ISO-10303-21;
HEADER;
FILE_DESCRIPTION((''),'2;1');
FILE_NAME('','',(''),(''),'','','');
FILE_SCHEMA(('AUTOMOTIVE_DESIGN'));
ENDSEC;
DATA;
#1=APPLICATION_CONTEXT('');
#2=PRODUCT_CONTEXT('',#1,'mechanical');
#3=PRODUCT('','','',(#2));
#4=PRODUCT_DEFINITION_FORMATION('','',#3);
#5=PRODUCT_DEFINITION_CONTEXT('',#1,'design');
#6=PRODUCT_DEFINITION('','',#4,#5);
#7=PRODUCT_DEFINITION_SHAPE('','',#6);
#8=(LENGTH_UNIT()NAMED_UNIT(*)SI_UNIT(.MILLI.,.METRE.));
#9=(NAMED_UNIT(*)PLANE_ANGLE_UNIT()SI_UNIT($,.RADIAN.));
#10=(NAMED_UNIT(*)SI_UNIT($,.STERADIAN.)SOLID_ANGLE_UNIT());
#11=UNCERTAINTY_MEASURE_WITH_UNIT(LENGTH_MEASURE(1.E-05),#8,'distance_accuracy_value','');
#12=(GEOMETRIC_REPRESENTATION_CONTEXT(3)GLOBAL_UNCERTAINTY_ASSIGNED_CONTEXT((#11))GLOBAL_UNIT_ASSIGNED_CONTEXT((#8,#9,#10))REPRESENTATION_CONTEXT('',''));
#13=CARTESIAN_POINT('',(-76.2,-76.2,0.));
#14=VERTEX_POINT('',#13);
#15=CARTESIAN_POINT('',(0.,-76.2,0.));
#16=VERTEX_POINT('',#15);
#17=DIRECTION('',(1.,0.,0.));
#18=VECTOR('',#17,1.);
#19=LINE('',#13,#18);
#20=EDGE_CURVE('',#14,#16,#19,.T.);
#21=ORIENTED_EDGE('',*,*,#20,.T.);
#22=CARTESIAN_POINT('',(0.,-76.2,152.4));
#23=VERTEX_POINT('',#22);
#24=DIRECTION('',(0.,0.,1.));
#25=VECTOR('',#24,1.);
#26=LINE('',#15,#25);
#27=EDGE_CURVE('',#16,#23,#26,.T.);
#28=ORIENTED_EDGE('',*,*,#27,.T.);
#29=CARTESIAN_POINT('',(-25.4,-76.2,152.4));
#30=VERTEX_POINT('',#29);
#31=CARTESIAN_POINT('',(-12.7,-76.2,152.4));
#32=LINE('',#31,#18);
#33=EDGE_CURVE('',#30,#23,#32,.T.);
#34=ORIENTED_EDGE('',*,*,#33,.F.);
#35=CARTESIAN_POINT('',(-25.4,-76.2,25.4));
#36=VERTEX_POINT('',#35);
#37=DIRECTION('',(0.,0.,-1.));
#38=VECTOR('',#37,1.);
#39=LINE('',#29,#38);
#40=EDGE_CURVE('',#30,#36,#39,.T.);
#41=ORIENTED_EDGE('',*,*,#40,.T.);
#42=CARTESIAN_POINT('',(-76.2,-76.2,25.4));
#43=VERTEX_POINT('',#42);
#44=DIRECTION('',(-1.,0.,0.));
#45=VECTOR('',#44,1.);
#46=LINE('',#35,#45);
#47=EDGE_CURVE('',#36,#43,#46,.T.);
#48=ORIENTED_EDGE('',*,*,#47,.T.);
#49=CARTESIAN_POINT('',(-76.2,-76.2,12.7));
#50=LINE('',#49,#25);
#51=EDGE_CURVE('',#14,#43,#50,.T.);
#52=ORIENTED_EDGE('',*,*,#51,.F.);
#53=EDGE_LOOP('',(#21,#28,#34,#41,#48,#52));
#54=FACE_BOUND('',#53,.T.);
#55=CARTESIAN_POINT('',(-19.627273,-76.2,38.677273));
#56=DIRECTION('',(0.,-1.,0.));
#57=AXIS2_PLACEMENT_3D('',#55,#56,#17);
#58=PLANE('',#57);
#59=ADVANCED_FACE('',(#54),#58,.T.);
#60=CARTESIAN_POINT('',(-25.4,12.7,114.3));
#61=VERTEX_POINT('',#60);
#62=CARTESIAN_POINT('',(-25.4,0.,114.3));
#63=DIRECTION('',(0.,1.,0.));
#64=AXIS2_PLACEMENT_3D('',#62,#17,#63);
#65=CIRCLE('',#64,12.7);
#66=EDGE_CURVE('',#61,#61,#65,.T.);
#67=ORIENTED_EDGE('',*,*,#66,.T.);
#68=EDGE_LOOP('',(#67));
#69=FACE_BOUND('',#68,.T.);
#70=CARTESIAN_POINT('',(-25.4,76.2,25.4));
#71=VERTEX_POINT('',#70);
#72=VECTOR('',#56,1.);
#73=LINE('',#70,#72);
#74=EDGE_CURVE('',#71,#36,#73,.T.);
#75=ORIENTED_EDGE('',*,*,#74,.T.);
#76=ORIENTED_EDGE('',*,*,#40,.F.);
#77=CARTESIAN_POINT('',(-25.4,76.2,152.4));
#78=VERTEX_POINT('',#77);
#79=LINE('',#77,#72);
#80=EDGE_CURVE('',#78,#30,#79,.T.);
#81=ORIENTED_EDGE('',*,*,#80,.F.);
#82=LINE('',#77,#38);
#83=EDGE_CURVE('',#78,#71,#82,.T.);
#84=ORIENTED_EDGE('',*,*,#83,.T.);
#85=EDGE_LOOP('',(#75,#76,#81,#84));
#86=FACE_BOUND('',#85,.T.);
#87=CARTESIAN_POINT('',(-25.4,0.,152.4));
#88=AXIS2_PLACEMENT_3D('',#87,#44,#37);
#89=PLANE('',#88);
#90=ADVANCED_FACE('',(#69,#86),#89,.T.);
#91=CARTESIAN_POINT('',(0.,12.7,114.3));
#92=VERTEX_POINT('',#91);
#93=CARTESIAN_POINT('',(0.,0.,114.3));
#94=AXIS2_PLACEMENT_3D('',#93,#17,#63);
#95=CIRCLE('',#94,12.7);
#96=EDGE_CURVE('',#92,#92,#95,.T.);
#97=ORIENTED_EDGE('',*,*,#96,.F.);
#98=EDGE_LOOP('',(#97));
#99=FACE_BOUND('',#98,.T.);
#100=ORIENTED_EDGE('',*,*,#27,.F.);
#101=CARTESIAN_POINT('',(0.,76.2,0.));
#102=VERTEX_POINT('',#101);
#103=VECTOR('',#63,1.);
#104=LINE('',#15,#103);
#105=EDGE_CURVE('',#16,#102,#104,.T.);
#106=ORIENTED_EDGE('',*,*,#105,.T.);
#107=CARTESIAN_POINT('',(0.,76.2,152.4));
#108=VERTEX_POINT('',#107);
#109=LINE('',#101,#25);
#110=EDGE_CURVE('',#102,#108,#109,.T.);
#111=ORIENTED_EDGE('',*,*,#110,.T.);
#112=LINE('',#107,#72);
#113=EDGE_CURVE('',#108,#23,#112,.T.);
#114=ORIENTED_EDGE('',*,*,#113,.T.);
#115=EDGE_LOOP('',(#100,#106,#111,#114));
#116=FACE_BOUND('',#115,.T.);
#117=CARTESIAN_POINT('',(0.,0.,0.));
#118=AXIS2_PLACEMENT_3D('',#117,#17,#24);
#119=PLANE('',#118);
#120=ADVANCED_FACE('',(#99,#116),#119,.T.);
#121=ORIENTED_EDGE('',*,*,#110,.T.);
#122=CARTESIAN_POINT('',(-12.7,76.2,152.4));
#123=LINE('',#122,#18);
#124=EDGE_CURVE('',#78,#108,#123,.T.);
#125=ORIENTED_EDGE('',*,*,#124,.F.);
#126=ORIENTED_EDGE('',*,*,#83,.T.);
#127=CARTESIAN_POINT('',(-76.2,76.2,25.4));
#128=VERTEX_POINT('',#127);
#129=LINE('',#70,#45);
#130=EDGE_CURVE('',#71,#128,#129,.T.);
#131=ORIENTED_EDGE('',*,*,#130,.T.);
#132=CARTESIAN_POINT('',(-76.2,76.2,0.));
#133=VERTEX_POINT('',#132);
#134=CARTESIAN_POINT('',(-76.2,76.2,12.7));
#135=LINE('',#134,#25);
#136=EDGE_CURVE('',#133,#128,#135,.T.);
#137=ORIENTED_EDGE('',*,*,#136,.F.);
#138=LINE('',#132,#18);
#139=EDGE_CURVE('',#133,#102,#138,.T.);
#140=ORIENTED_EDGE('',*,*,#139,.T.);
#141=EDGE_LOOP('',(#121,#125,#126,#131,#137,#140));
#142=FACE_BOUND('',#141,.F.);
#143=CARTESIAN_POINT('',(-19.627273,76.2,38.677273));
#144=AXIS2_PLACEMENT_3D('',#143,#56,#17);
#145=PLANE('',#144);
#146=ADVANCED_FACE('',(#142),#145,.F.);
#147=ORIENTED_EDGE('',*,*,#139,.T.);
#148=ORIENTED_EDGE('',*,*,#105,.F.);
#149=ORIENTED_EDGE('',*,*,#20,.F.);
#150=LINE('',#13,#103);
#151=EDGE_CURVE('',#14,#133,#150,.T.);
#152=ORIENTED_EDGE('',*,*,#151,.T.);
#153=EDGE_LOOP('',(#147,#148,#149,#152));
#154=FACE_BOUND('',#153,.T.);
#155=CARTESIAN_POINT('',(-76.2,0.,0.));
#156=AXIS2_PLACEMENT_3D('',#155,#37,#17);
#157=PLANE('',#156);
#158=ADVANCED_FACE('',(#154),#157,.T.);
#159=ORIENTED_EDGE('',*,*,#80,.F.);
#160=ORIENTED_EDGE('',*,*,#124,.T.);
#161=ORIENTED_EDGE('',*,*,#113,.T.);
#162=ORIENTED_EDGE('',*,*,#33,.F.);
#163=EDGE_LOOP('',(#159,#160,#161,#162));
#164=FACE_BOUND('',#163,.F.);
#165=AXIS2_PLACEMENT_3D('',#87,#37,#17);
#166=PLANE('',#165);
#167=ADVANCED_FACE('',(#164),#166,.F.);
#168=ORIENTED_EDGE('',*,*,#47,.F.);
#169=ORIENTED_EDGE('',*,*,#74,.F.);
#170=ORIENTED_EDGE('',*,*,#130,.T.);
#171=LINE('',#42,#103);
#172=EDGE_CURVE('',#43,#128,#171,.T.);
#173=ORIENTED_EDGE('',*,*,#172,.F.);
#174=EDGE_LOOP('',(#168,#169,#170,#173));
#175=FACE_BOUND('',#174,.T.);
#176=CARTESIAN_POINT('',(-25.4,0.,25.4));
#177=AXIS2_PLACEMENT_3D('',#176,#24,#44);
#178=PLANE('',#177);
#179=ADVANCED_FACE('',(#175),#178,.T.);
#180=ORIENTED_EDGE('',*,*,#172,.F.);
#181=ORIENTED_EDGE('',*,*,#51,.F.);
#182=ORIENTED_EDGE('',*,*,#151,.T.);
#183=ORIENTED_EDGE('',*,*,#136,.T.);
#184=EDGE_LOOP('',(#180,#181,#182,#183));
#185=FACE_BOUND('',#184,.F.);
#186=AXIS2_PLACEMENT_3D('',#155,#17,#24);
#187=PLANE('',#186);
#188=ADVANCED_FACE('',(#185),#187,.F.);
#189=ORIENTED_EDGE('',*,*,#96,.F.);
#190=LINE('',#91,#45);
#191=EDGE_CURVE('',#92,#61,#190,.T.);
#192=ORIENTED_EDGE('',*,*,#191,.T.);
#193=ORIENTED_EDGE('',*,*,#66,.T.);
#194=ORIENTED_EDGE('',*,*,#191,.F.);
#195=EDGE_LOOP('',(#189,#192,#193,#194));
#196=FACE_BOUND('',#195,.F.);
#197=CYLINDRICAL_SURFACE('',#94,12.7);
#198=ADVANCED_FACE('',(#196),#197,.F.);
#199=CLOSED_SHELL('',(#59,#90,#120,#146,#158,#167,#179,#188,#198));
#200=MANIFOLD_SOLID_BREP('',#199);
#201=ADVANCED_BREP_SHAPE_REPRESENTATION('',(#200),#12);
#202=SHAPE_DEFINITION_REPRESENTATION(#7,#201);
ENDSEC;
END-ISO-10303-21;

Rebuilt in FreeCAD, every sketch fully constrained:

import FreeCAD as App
import Part
import Sketcher
Q = App.Units.Quantity


def add_polygon(sketch, points):
    """Adds a closed chain of lines whose ends are joined by coincident constraints."""
    first, n = sketch.GeometryCount, len(points)
    for a, b in zip(points, points[1:] + points[:1]):
        sketch.addGeometry(Part.LineSegment(App.Vector(*a, 0), App.Vector(*b, 0)), False)
    for i in range(n):
        sketch.addConstraint(Sketcher.Constraint("Coincident", first + i, 2, first + (i + 1) % n, 1))

doc = App.newDocument("Part")
body = doc.addObject("PartDesign::Body", "Body")

# Sketch on XZ plane
sketch1 = doc.addObject("Sketcher::SketchObject", "Sketch")
body.addObject(sketch1)
sketch1.AttachmentSupport = (doc.XZ_Plane, [""])
sketch1.MapMode = "FlatFace"
add_polygon(sketch1, [(0, 0), (0, 152.4), (-25.4, 152.4), (-25.4, 25.4), (-76.2, 25.4), (-76.2, 0)])  # lines 0-5
sketch1.addConstraint([
    Sketcher.Constraint("Vertical", 0),
    Sketcher.Constraint("Horizontal", 1),
    Sketcher.Constraint("Vertical", 2),
    Sketcher.Constraint("Horizontal", 3),
    Sketcher.Constraint("Vertical", 4),
    Sketcher.Constraint("Horizontal", 5),
    Sketcher.Constraint("Coincident", 5, 2, -1, 1),
    Sketcher.Constraint("Equal", 1, 4),
    Sketcher.Constraint("DistanceX", 1, 2, 1, 1, Q("1 in")),
    Sketcher.Constraint("DistanceX", 3, 2, 3, 1, Q("2 in")),
    Sketcher.Constraint("DistanceY", 0, 1, 0, 2, Q("6 in")),
])
pad1 = doc.addObject("PartDesign::Pad", "Pad")
body.addObject(pad1)
pad1.Profile = sketch1
pad1.Length = Q("6 in")
pad1.Midplane = True

# Sketch on YZ plane
sketch2 = doc.addObject("Sketcher::SketchObject", "Sketch001")
body.addObject(sketch2)
sketch2.AttachmentSupport = (doc.YZ_Plane, [""])
sketch2.MapMode = "FlatFace"
sketch2.addGeometry(Part.Circle(App.Vector(0, 114.3, 0), App.Vector(0, 0, 1), 12.7), False)
sketch2.addConstraint([
    Sketcher.Constraint("PointOnObject", 0, 3, -2),
    Sketcher.Constraint("Diameter", 0, Q("1 in")),
    Sketcher.Constraint("DistanceY", -1, 1, 0, 3, Q("4.5 in")),
])
pocket1 = doc.addObject("PartDesign::Pocket", "Pocket")
body.addObject(pocket1)
pocket1.Profile = sketch2
pocket1.Type = "ThroughAll"

doc.recompute()
